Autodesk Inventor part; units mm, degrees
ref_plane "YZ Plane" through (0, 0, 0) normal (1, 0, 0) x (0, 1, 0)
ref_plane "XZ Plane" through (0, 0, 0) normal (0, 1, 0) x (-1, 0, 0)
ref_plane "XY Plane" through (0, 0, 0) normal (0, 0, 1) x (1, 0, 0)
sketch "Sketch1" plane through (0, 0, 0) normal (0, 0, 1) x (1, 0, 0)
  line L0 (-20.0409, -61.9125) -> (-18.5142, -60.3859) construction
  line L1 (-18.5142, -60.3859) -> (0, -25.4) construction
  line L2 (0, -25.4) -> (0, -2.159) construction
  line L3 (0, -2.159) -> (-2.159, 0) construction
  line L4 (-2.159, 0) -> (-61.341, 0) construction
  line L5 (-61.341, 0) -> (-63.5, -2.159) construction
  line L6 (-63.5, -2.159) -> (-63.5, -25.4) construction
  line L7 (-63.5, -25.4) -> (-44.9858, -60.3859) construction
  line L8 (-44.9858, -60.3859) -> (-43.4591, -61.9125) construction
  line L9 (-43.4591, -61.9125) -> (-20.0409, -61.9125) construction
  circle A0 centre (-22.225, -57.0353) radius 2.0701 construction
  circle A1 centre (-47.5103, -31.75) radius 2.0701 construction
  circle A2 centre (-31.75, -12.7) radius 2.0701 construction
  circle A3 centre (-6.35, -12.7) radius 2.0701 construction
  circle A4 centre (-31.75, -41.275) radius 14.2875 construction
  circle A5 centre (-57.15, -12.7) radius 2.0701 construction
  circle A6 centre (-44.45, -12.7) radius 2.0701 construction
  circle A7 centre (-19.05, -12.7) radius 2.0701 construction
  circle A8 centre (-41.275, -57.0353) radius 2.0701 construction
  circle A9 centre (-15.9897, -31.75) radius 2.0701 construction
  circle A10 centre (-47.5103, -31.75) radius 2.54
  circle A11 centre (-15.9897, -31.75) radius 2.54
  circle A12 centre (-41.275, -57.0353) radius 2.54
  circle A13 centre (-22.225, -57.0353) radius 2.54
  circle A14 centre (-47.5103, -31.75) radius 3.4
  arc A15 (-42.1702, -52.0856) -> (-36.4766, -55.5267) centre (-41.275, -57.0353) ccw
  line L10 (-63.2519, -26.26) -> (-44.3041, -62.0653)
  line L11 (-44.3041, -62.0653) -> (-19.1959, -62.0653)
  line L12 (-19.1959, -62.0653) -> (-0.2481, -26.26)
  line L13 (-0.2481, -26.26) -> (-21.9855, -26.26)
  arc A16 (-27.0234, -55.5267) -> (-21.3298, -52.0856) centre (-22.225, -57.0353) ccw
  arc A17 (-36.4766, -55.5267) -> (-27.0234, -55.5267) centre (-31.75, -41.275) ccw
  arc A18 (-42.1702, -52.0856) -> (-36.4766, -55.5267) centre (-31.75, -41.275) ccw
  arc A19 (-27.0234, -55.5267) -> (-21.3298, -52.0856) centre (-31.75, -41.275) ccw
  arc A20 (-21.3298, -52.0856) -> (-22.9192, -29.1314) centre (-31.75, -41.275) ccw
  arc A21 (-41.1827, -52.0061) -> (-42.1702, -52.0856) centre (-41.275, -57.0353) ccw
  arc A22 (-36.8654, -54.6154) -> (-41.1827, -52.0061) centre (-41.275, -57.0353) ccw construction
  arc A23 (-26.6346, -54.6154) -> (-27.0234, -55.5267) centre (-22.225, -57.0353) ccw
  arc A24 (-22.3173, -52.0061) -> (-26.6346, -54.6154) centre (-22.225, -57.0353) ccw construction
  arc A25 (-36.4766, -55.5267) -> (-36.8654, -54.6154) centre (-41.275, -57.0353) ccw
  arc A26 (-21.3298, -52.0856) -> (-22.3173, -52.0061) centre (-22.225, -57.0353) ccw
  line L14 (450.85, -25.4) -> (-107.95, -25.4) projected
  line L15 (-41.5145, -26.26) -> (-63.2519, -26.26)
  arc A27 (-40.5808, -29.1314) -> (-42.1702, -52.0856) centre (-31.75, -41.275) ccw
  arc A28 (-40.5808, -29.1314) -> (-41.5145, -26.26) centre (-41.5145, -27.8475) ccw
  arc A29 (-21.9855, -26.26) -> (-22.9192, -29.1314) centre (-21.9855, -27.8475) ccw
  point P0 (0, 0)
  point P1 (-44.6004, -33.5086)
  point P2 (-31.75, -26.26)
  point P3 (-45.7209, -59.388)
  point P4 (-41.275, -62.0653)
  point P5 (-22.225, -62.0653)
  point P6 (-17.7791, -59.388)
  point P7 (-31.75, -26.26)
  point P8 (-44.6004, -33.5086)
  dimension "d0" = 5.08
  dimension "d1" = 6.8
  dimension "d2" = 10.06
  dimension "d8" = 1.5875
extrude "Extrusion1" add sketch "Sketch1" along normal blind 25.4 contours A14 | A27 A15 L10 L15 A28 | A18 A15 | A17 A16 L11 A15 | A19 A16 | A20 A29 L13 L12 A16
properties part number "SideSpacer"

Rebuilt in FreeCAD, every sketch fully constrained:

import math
import FreeCAD as App
import Part
import Sketcher
from FreeCAD import Vector
Q = App.Units.Quantity

doc = App.newDocument("Part")
body = doc.addObject("PartDesign::Body", "Body")

# Sketch on XY plane
sketch1 = body.newObject("Sketcher::SketchObject", "Sketch")
sketch1.AttachmentSupport = (doc.getObject("XY_Plane"), [""])
sketch1.MapMode = "FlatFace"
sketch1.addGeometry(Part.ArcOfCircle(Part.Circle(Vector(-31.75, -41.275, 0), Vector(0, 0, 1), 15.014981), math.radians(126.024568), math.radians(226.053458)), False)
sketch1.addGeometry(Part.ArcOfCircle(Part.Circle(Vector(-41.5145, -27.8475, 0), Vector(0, 0, 1), 1.587512), math.radians(-53.973953), math.radians(90)), False)
sketch1.addGeometry(Part.LineSegment(Vector(-41.5145, -26.26, 0), Vector(-63.2519, -26.26, 0)), False)
sketch1.addGeometry(Part.LineSegment(Vector(-63.2519, -26.26, 0), Vector(-45.720899, -59.388002, 0)), False)
sketch1.addGeometry(Part.ArcOfCircle(Part.Circle(Vector(-41.275, -57.0353, 0), Vector(0, 0, 1), 5.030001), math.radians(-152.11289), math.radians(-90.000357)), False)
sketch1.addGeometry(Part.LineSegment(Vector(-41.275031, -62.0653, 0), Vector(-22.22498, -62.0653, 0)), False)
sketch1.addGeometry(Part.ArcOfCircle(Part.Circle(Vector(-22.225, -57.0353, 0), Vector(0, 0, 1), 5.029962), math.radians(-89.999776), math.radians(-27.88698)), False)
sketch1.addGeometry(Part.LineSegment(Vector(-17.779096, -59.387992, 0), Vector(-0.2481, -26.26, 0)), False)
sketch1.addGeometry(Part.LineSegment(Vector(-0.2481, -26.26, 0), Vector(-21.9855, -26.26, 0)), False)
sketch1.addGeometry(Part.ArcOfCircle(Part.Circle(Vector(-21.9855, -27.8475, 0), Vector(0, 0, 1), 1.5875), math.radians(90), math.radians(233.973953)), False)
sketch1.addGeometry(Part.ArcOfCircle(Part.Circle(Vector(-31.75, -41.275, 0), Vector(0, 0, 1), 15.014994), math.radians(-46.053458), math.radians(53.975432)), False)
sketch1.addGeometry(Part.ArcOfCircle(Part.Circle(Vector(-31.749419, -41.276261, 0), Vector(0, 0, 1), 15.013669), math.radians(-71.652403), math.radians(-46.051715)), False)
sketch1.addGeometry(Part.ArcOfCircle(Part.Circle(Vector(-31.75, -41.275, 0), Vector(0, 0, 1), 15.015049), math.radians(-108.348188), math.radians(-71.651812)), False)
sketch1.addGeometry(Part.ArcOfCircle(Part.Circle(Vector(-31.749153, -41.273899, 0), Vector(0, 0, 1), 15.016361), math.radians(-133.945951), math.radians(-108.349931)), False)
sketch1.addGeometry(Part.Circle(Vector(-47.5103, -31.75, 0), Vector(0, 0, 1), 2.54), False)
sketch1.addGeometry(Part.Circle(Vector(-41.275, -57.0353, 0), Vector(0, 0, 1), 2.54), False)
sketch1.addGeometry(Part.Circle(Vector(-22.225, -57.0353, 0), Vector(0, 0, 1), 2.54), False)
sketch1.addGeometry(Part.Circle(Vector(-15.9897, -31.75, 0), Vector(0, 0, 1), 2.54), False)
sketch1.addConstraint(Sketcher.Constraint("Coincident", 0, 1, 1, 1))
sketch1.addConstraint(Sketcher.Constraint("Coincident", 1, 2, 2, 1))
sketch1.addConstraint(Sketcher.Constraint("Coincident", 2, 2, 3, 1))
sketch1.addConstraint(Sketcher.Constraint("Coincident", 3, 2, 4, 1))
sketch1.addConstraint(Sketcher.Constraint("Coincident", 4, 2, 5, 1))
sketch1.addConstraint(Sketcher.Constraint("Coincident", 5, 2, 6, 1))
sketch1.addConstraint(Sketcher.Constraint("Coincident", 6, 2, 7, 1))
sketch1.addConstraint(Sketcher.Constraint("Coincident", 7, 2, 8, 1))
sketch1.addConstraint(Sketcher.Constraint("Coincident", 8, 2, 9, 1))
sketch1.addConstraint(Sketcher.Constraint("Coincident", 9, 2, 10, 2))
sketch1.addConstraint(Sketcher.Constraint("Coincident", 10, 1, 11, 2))
sketch1.addConstraint(Sketcher.Constraint("Coincident", 11, 1, 12, 2))
sketch1.addConstraint(Sketcher.Constraint("Coincident", 12, 1, 13, 2))
sketch1.addConstraint(Sketcher.Constraint("Coincident", 13, 1, 0, 2))
sketch1.addConstraint(Sketcher.Constraint("Horizontal", 2))
sketch1.addConstraint(Sketcher.Constraint("Horizontal", 5))
sketch1.addConstraint(Sketcher.Constraint("Horizontal", 8))
sketch1.addConstraint(Sketcher.Constraint("Coincident", 10, 3, 0, 3))
sketch1.addConstraint(Sketcher.Constraint("Coincident", 12, 3, 0, 3))
sketch1.addConstraint(Sketcher.Constraint("Coincident", 15, 3, 4, 3))
sketch1.addConstraint(Sketcher.Constraint("Coincident", 16, 3, 6, 3))
sketch1.addConstraint(Sketcher.Constraint("Diameter", 14, Q("0.2 in")))
sketch1.addConstraint(Sketcher.Constraint("Diameter", 15, Q("0.2 in")))
sketch1.addConstraint(Sketcher.Constraint("Diameter", 16, Q("0.2 in")))
sketch1.addConstraint(Sketcher.Constraint("Diameter", 17, Q("0.2 in")))
sketch1.addConstraint(Sketcher.Constraint("Radius", 1, Q("0.0625 in")))
sketch1.addConstraint(Sketcher.Constraint("Radius", 9, Q("0.0625 in")))
sketch1.addConstraint(Sketcher.Constraint("Radius", 4, 5.03))
sketch1.addConstraint(Sketcher.Constraint("Radius", 6, 5.03))
sketch1.addConstraint(Sketcher.Constraint("DistanceX", 11, 3, 13, 3, Q("0 in")))
sketch1.addConstraint(Sketcher.Constraint("DistanceX", 5, 1, 5, 2, Q("0.75 in")))
sketch1.addConstraint(Sketcher.Constraint("Radius", 11, Q("0.5911 in")))
sketch1.addConstraint(Sketcher.Constraint("Radius", 13, Q("0.5912 in")))
sketch1.addConstraint(Sketcher.Constraint("DistanceX", 0, 3, -1, 1, Q("1.25 in")))
sketch1.addConstraint(Sketcher.Constraint("DistanceY", 14, 3, -1, 1, Q("1.25 in")))
sketch1.addConstraint(Sketcher.Constraint("DistanceY", 17, 3, -1, 1, Q("1.25 in")))
sketch1.addConstraint(Sketcher.Constraint("Radius", 0, 15.015))
sketch1.addConstraint(Sketcher.Constraint("Radius", 10, 15.015))
sketch1.addConstraint(Sketcher.Constraint("DistanceX", 4, 3, 6, 3, Q("0.75 in")))
sketch1.addConstraint(Sketcher.Constraint("DistanceX", 4, 2, 6, 3, Q("0.75 in")))
sketch1.addConstraint(Sketcher.Constraint("DistanceX", 11, 3, 6, 2, Q("0.55 in")))
sketch1.addConstraint(Sketcher.Constraint("DistanceX", 2, 2, 2, 1, Q("0.8558 in")))
sketch1.addConstraint(Sketcher.Constraint("DistanceX", 8, 2, 8, 1, Q("0.8558 in")))
sketch1.addConstraint(Sketcher.Constraint("DistanceY", 0, 3, -1, 1, Q("1.625 in")))
sketch1.addConstraint(Sketcher.Constraint("DistanceX", 4, 3, -1, 1, Q("1.625 in")))
sketch1.addConstraint(Sketcher.Constraint("DistanceY", 0, 1, -1, 1, Q("1.1469 in")))
sketch1.addConstraint(Sketcher.Constraint("DistanceY", 3, 2, -1, 1, Q("2.3381 in")))
sketch1.addConstraint(Sketcher.Constraint("DistanceY", 6, 2, -1, 1, Q("2.3381 in")))
sketch1.addConstraint(Sketcher.Constraint("DistanceY", 9, 2, -1, 1, Q("1.1469 in")))
sketch1.addConstraint(Sketcher.Constraint("DistanceY", 11, 1, -1, 1, Q("2.1861 in")))
sketch1.addConstraint(Sketcher.Constraint("DistanceY", 12, 1, -1, 1, Q("2.1861 in")))
sketch1.addConstraint(Sketcher.Constraint("DistanceX", 11, 3, 9, 3, Q("0.3844 in")))
sketch1.addConstraint(Sketcher.Constraint("DistanceY", 11, 3, 1, 3, Q("0.5287 in")))
sketch1.addConstraint(Sketcher.Constraint("DistanceX", 2, 2, 1, 3, Q("0.8558 in")))
sketch1.addConstraint(Sketcher.Constraint("DistanceX", 9, 3, 7, 2, Q("0.8558 in")))
sketch1.addConstraint(Sketcher.Constraint("DistanceX", 10, 1, 6, 2, Q("0.1398 in")))
sketch1.addConstraint(Sketcher.Constraint("DistanceX", 3, 2, 13, 1, Q("0.1398 in")))
sketch1.addConstraint(Sketcher.Constraint("DistanceX", 14, 3, -1, 1, 47.5103))
sketch1.addConstraint(Sketcher.Constraint("DistanceX", 17, 3, -1, 1, 15.9897))
pad1 = body.newObject("PartDesign::Pad", "Pad")
pad1.Profile = sketch1
pad1.Length = Q("1 in")

doc.recompute()
